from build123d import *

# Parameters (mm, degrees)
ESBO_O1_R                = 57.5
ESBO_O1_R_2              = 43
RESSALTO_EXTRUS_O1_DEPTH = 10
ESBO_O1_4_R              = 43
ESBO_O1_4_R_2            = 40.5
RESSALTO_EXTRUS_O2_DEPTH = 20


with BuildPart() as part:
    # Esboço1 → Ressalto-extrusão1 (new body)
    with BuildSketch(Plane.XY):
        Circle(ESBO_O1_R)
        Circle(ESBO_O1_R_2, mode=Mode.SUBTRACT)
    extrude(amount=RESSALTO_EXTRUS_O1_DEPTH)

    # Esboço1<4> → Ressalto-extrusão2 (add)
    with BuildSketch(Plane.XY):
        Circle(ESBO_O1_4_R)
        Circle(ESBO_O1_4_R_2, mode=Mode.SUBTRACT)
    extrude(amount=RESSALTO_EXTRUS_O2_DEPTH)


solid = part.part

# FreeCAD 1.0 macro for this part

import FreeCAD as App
import Part
import Sketcher

V = App.Vector
Q = App.Units.Quantity

doc = App.newDocument("Part")
params = doc.addObject("Spreadsheet::Sheet", "Params")
for row, (alias, value) in enumerate([
    ("sketch1_diameter", "115 mm"),
    ("sketch1_diameter2", "86 mm"),
    ("pad1_length", "10 mm"),
    ("sketch2_diameter", "86 mm"),
    ("sketch2_diameter2", "81 mm"),
    ("pad2_length", "20 mm"),
], start=1):
    params.set(f"A{row}", alias)
    params.set(f"B{row}", "=" + value)
    params.setAlias(f"B{row}", alias)

body = doc.addObject("PartDesign::Body", "Body")

sketch1 = body.newObject("Sketcher::SketchObject", "Sketch")
sketch1.AttachmentSupport = (doc.getObject("XY_Plane"), [""])
sketch1.MapMode = "FlatFace"
sketch1.addGeometry(Part.Circle(V(0, 0, 0), V(0, 0, 1), 58), False)
sketch1.addGeometry(Part.Circle(V(0, 0, 0), V(0, 0, 1), 43), False)
sketch1.addConstraint(Sketcher.Constraint("Coincident", 0, 3, -1, 1))
sketch1.addConstraint(Sketcher.Constraint("Coincident", 1, 3, -1, 1))
sketch1.addConstraint(Sketcher.Constraint("Diameter", 0, Q("115 mm")))
sketch1.addConstraint(Sketcher.Constraint("Diameter", 1, Q("86 mm")))
sketch1.setExpression("Constraints[2]", "Params.sketch1_diameter")
sketch1.setExpression("Constraints[3]", "Params.sketch1_diameter2")
pad1 = body.newObject("PartDesign::Pad", "Pad")
pad1.Profile = sketch1
pad1.setExpression("Length", "Params.pad1_length")

sketch2 = body.newObject("Sketcher::SketchObject", "Sketch001")
sketch2.AttachmentSupport = (doc.getObject("XY_Plane"), [""])
sketch2.MapMode = "FlatFace"
sketch2.addGeometry(Part.Circle(V(0, 0, 0), V(0, 0, 1), 43), False)
sketch2.addGeometry(Part.Circle(V(0, 0, 0), V(0, 0, 1), 40), False)
sketch2.addConstraint(Sketcher.Constraint("Coincident", 0, 3, -1, 1))
sketch2.addConstraint(Sketcher.Constraint("Coincident", 1, 3, -1, 1))
sketch2.addConstraint(Sketcher.Constraint("Diameter", 0, Q("86 mm")))
sketch2.addConstraint(Sketcher.Constraint("Diameter", 1, Q("81 mm")))
sketch2.setExpression("Constraints[2]", "Params.sketch2_diameter")
sketch2.setExpression("Constraints[3]", "Params.sketch2_diameter2")
pad2 = body.newObject("PartDesign::Pad", "Pad001")
pad2.Profile = sketch2
pad2.setExpression("Length", "Params.pad2_length")

doc.recompute()
